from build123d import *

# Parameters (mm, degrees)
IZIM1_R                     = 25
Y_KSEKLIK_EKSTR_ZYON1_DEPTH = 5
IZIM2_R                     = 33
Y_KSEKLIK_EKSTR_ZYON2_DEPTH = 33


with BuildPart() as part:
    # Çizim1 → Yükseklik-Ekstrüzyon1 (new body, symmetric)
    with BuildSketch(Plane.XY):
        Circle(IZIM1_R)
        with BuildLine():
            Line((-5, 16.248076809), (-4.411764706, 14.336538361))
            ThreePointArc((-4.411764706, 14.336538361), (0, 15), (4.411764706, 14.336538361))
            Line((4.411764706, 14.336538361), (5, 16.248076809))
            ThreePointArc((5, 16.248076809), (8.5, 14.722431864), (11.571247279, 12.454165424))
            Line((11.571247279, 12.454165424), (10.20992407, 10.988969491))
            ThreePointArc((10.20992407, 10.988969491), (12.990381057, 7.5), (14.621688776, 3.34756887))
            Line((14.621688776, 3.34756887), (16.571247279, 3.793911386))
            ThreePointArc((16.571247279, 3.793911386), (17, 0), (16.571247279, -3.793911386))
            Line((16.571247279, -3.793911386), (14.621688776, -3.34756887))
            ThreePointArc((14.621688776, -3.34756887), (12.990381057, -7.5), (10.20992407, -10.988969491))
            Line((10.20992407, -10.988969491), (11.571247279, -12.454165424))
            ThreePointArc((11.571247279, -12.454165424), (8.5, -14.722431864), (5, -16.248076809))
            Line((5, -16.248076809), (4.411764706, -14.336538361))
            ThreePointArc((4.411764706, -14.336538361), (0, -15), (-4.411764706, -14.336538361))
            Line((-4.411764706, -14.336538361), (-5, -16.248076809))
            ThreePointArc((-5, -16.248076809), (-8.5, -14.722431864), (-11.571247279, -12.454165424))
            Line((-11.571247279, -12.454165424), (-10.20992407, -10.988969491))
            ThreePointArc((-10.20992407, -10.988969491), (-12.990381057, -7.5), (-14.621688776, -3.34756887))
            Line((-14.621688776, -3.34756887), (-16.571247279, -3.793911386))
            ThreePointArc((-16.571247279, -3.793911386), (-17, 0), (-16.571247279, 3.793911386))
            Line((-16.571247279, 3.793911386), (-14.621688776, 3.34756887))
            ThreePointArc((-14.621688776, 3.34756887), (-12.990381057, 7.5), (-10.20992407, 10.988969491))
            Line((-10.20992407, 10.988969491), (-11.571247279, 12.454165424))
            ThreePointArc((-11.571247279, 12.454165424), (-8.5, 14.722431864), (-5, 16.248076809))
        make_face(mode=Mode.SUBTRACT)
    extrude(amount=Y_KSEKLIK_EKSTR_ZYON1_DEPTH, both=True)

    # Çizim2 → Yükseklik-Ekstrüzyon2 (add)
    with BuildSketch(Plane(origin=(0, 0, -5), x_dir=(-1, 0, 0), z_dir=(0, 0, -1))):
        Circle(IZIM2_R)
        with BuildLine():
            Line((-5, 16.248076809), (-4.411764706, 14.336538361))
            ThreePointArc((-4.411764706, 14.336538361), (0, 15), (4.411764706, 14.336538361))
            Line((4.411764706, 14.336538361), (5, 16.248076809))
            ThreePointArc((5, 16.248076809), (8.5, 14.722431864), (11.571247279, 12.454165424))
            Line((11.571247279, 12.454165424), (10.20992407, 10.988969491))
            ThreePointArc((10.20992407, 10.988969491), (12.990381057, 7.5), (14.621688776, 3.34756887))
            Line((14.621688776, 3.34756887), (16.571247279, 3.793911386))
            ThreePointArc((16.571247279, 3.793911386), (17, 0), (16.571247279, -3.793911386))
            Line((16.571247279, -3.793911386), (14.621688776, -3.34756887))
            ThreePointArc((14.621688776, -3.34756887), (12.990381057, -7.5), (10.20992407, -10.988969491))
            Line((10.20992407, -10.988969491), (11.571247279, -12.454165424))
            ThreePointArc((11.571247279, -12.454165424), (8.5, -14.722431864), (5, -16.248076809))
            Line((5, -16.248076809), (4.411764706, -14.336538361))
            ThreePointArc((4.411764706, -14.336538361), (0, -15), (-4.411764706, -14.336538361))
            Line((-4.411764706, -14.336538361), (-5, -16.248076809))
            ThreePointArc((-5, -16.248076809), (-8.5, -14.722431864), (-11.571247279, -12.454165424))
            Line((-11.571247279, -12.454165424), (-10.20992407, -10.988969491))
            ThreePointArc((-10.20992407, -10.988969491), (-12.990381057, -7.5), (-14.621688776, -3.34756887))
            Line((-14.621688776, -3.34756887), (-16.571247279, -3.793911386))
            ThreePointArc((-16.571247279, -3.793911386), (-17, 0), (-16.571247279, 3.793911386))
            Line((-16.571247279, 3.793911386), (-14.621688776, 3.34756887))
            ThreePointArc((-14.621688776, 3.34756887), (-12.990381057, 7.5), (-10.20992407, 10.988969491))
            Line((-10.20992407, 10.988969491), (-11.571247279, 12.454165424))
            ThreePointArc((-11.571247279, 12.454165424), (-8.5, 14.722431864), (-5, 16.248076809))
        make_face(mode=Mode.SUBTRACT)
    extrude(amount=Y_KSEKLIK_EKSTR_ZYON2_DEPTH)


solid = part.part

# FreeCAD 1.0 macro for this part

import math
import FreeCAD as App
import Part
import Sketcher

V = App.Vector
Q = App.Units.Quantity

doc = App.newDocument("Part")
body = doc.addObject("PartDesign::Body", "Body")

# Sketch on XY plane
sketch1 = body.newObject("Sketcher::SketchObject", "Sketch")
sketch1.AttachmentSupport = (doc.getObject("XY_Plane"), [""])
sketch1.MapMode = "FlatFace"
sketch1.addGeometry([
    Part.Circle(V(0, 0, 0), V(0, 0, 1), 25),  # 0
    Part.ArcOfCircle(Part.Circle(V(0, 0, 0), V(0, 0, 1), 17), math.radians(107), math.radians(133)),  # 1
    Part.LineSegment(V(-5, 16.2, 0), V(-4.4, 14.3, 0)),  # 2
    Part.ArcOfCircle(Part.Circle(V(0, 0, 0), V(0, 0, 1), 15), math.radians(73), math.radians(107)),  # 3
    Part.LineSegment(V(4.4, 14.3, 0), V(5, 16.2, 0)),  # 4
    Part.ArcOfCircle(Part.Circle(V(0, 0, 0), V(0, 0, 1), 17), math.radians(47), math.radians(73)),  # 5
    Part.LineSegment(V(11.6, 12.5, 0), V(10.2, 11, 0)),  # 6
    Part.ArcOfCircle(Part.Circle(V(0, 0, 0), V(0, 0, 1), 15), math.radians(13), math.radians(47)),  # 7
    Part.LineSegment(V(14.6, 3.3, 0), V(16.6, 3.8, 0)),  # 8
    Part.ArcOfCircle(Part.Circle(V(0, 0, 0), V(0, 0, 1), 17), math.radians(-13), math.radians(13)),  # 9
    Part.LineSegment(V(16.6, -3.8, 0), V(14.6, -3.3, 0)),  # 10
    Part.ArcOfCircle(Part.Circle(V(0, 0, 0), V(0, 0, 1), 15), math.radians(-47), math.radians(-13)),  # 11
    Part.LineSegment(V(10.2, -11, 0), V(11.6, -12.5, 0)),  # 12
    Part.ArcOfCircle(Part.Circle(V(0, 0, 0), V(0, 0, 1), 17), math.radians(-73), math.radians(-47)),  # 13
    Part.LineSegment(V(5, -16.2, 0), V(4.4, -14.3, 0)),  # 14
    Part.ArcOfCircle(Part.Circle(V(0, 0, 0), V(0, 0, 1), 15), math.radians(-107), math.radians(-73)),  # 15
    Part.LineSegment(V(-4.4, -14.3, 0), V(-5, -16.2, 0)),  # 16
    Part.ArcOfCircle(Part.Circle(V(0, 0, 0), V(0, 0, 1), 17), math.radians(-133), math.radians(-107)),  # 17
    Part.LineSegment(V(-11.6, -12.5, 0), V(-10.2, -11, 0)),  # 18
    Part.ArcOfCircle(Part.Circle(V(0, 0, 0), V(0, 0, 1), 15), math.radians(-167), math.radians(-133)),  # 19
    Part.LineSegment(V(-14.6, -3.3, 0), V(-16.6, -3.8, 0)),  # 20
    Part.ArcOfCircle(Part.Circle(V(0, 0, 0), V(0, 0, 1), 17), math.radians(167), math.radians(193)),  # 21
    Part.LineSegment(V(-16.6, 3.8, 0), V(-14.6, 3.3, 0)),  # 22
    Part.ArcOfCircle(Part.Circle(V(0, 0, 0), V(0, 0, 1), 15), math.radians(133), math.radians(167)),  # 23
    Part.LineSegment(V(-10.2, 11, 0), V(-11.6, 12.5, 0)),  # 24
], False)
sketch1.addConstraint([
    Sketcher.Constraint("Coincident", 1, 1, 2, 1),
    Sketcher.Constraint("Coincident", 2, 2, 3, 2),
    Sketcher.Constraint("Coincident", 3, 1, 4, 1),
    Sketcher.Constraint("Coincident", 4, 2, 5, 2),
    Sketcher.Constraint("Coincident", 5, 1, 6, 1),
    Sketcher.Constraint("Coincident", 6, 2, 7, 2),
    Sketcher.Constraint("Coincident", 7, 1, 8, 1),
    Sketcher.Constraint("Coincident", 8, 2, 9, 2),
    Sketcher.Constraint("Coincident", 9, 1, 10, 1),
    Sketcher.Constraint("Coincident", 10, 2, 11, 2),
    Sketcher.Constraint("Coincident", 11, 1, 12, 1),
    Sketcher.Constraint("Coincident", 12, 2, 13, 2),
    Sketcher.Constraint("Coincident", 13, 1, 14, 1),
    Sketcher.Constraint("Coincident", 14, 2, 15, 2),
    Sketcher.Constraint("Coincident", 15, 1, 16, 1),
    Sketcher.Constraint("Coincident", 16, 2, 17, 2),
    Sketcher.Constraint("Coincident", 17, 1, 18, 1),
    Sketcher.Constraint("Coincident", 18, 2, 19, 2),
    Sketcher.Constraint("Coincident", 19, 1, 20, 1),
    Sketcher.Constraint("Coincident", 20, 2, 21, 2),
    Sketcher.Constraint("Coincident", 21, 1, 22, 1),
    Sketcher.Constraint("Coincident", 22, 2, 23, 2),
    Sketcher.Constraint("Coincident", 23, 1, 24, 1),
    Sketcher.Constraint("Coincident", 24, 2, 1, 2),
    Sketcher.Constraint("Coincident", 0, 3, -1, 1),
    Sketcher.Constraint("Coincident", 1, 3, -1, 1),
    Sketcher.Constraint("Coincident", 3, 3, -1, 1),
    Sketcher.Constraint("Coincident", 5, 3, -1, 1),
    Sketcher.Constraint("Coincident", 7, 3, -1, 1),
    Sketcher.Constraint("Coincident", 9, 3, -1, 1),
    Sketcher.Constraint("Coincident", 11, 3, -1, 1),
    Sketcher.Constraint("Coincident", 13, 3, -1, 1),
    Sketcher.Constraint("Coincident", 15, 3, -1, 1),
    Sketcher.Constraint("Coincident", 17, 3, -1, 1),
    Sketcher.Constraint("Coincident", 19, 3, -1, 1),
    Sketcher.Constraint("Coincident", 21, 3, -1, 1),
    Sketcher.Constraint("Coincident", 23, 3, -1, 1),
    Sketcher.Constraint("Equal", 1, 5),
    Sketcher.Constraint("Equal", 3, 7),
    Sketcher.Constraint("Equal", 5, 9),
    Sketcher.Constraint("Equal", 7, 11),
    Sketcher.Constraint("Equal", 9, 13),
    Sketcher.Constraint("Equal", 11, 15),
    Sketcher.Constraint("Equal", 13, 17),
    Sketcher.Constraint("Equal", 15, 19),
    Sketcher.Constraint("Equal", 17, 21),
    Sketcher.Constraint("Equal", 19, 23),
    Sketcher.Constraint("Parallel", 2, 14),
    Sketcher.Constraint("Parallel", 4, 16),
    Sketcher.Constraint("Parallel", 6, 18),
    Sketcher.Constraint("Parallel", 8, 20),
    Sketcher.Constraint("Parallel", 10, 22),
    Sketcher.Constraint("Parallel", 12, 24),
    Sketcher.Constraint("Horizontal", 2, 2, 3, 1),
    Sketcher.Constraint("Horizontal", 1, 1, 4, 2),
    Sketcher.Constraint("Horizontal", 14, 2, 15, 1),
    Sketcher.Constraint("Horizontal", 12, 2, 17, 1),
    Sketcher.Constraint("Horizontal", 11, 1, 18, 2),
    Sketcher.Constraint("Horizontal", 10, 2, 19, 1),
    Sketcher.Constraint("Horizontal", 9, 1, 20, 2),
    Sketcher.Constraint("Horizontal", 8, 2, 21, 1),
    Sketcher.Constraint("Horizontal", 6, 2, 23, 1),
    Sketcher.Constraint("Vertical", 8, 2, 9, 1),
    Sketcher.Constraint("Vertical", 6, 2, 11, 1),
    Sketcher.Constraint("Vertical", 4, 2, 13, 1),
    Sketcher.Constraint("Diameter", 0, Q("50 mm")),
    Sketcher.Constraint("Radius", 1, Q("17 mm")),
    Sketcher.Constraint("Radius", 3, Q("15 mm")),
    Sketcher.Constraint("DistanceX", 1, 1, -1, 1, Q("5 mm")),
    Sketcher.Constraint("DistanceX", 5, 1, 8, 2, Q("5 mm")),
    Sketcher.Constraint("DistanceY", 7, 1, 6, 2, Q("7.641401 mm")),
    Sketcher.Constraint("DistanceY", -1, 1, 2, 2, Q("14.336538 mm")),
    Sketcher.Constraint("DistanceY", -1, 1, 6, 2, Q("10.988969 mm")),
    Sketcher.Constraint("DistanceY", -1, 1, 8, 2, Q("3.793911 mm")),
])
pad1 = body.newObject("PartDesign::Pad", "Pad")
pad1.Profile = sketch1
pad1.Length = 10
pad1.Midplane = True

# Sketch on XY plane
sketch2 = body.newObject("Sketcher::SketchObject", "Sketch001")
sketch2.AttachmentSupport = (doc.getObject("XY_Plane"), [""])
sketch2.MapMode = "FlatFace"
sketch2.AttachmentOffset = App.Placement(V(0, 0, -5), App.Rotation())
sketch2.addGeometry([
    Part.Circle(V(0, 0, 0), V(0, 0, 1), 33),  # 0
    Part.ArcOfCircle(Part.Circle(V(0, 0, 0), V(0, 0, 1), 17), math.radians(47), math.radians(73)),  # 1
    Part.LineSegment(V(5, 16.2, 0), V(4.4, 14.3, 0)),  # 2
    Part.ArcOfCircle(Part.Circle(V(0, 0, 0), V(0, 0, 1), 15), math.radians(73), math.radians(107)),  # 3
    Part.LineSegment(V(-4.4, 14.3, 0), V(-5, 16.2, 0)),  # 4
    Part.ArcOfCircle(Part.Circle(V(0, 0, 0), V(0, 0, 1), 17), math.radians(107), math.radians(133)),  # 5
    Part.LineSegment(V(-11.6, 12.5, 0), V(-10.2, 11, 0)),  # 6
    Part.ArcOfCircle(Part.Circle(V(0, 0, 0), V(0, 0, 1), 15), math.radians(133), math.radians(167)),  # 7
    Part.LineSegment(V(-14.6, 3.3, 0), V(-16.6, 3.8, 0)),  # 8
    Part.ArcOfCircle(Part.Circle(V(0, 0, 0), V(0, 0, 1), 17), math.radians(167), math.radians(193)),  # 9
    Part.LineSegment(V(-16.6, -3.8, 0), V(-14.6, -3.3, 0)),  # 10
    Part.ArcOfCircle(Part.Circle(V(0, 0, 0), V(0, 0, 1), 15), math.radians(-167), math.radians(-133)),  # 11
    Part.LineSegment(V(-10.2, -11, 0), V(-11.6, -12.5, 0)),  # 12
    Part.ArcOfCircle(Part.Circle(V(0, 0, 0), V(0, 0, 1), 17), math.radians(-133), math.radians(-107)),  # 13
    Part.LineSegment(V(-5, -16.2, 0), V(-4.4, -14.3, 0)),  # 14
    Part.ArcOfCircle(Part.Circle(V(0, 0, 0), V(0, 0, 1), 15), math.radians(-107), math.radians(-73)),  # 15
    Part.LineSegment(V(4.4, -14.3, 0), V(5, -16.2, 0)),  # 16
    Part.ArcOfCircle(Part.Circle(V(0, 0, 0), V(0, 0, 1), 17), math.radians(-73), math.radians(-47)),  # 17
    Part.LineSegment(V(11.6, -12.5, 0), V(10.2, -11, 0)),  # 18
    Part.ArcOfCircle(Part.Circle(V(0, 0, 0), V(0, 0, 1), 15), math.radians(-47), math.radians(-13)),  # 19
    Part.LineSegment(V(14.6, -3.3, 0), V(16.6, -3.8, 0)),  # 20
    Part.ArcOfCircle(Part.Circle(V(0, 0, 0), V(0, 0, 1), 17), math.radians(-13), math.radians(13)),  # 21
    Part.LineSegment(V(16.6, 3.8, 0), V(14.6, 3.3, 0)),  # 22
    Part.ArcOfCircle(Part.Circle(V(0, 0, 0), V(0, 0, 1), 15), math.radians(13), math.radians(47)),  # 23
    Part.LineSegment(V(10.2, 11, 0), V(11.6, 12.5, 0)),  # 24
], False)
sketch2.addConstraint([
    Sketcher.Constraint("Coincident", 1, 2, 2, 1),
    Sketcher.Constraint("Coincident", 2, 2, 3, 1),
    Sketcher.Constraint("Coincident", 3, 2, 4, 1),
    Sketcher.Constraint("Coincident", 4, 2, 5, 1),
    Sketcher.Constraint("Coincident", 5, 2, 6, 1),
    Sketcher.Constraint("Coincident", 6, 2, 7, 1),
    Sketcher.Constraint("Coincident", 7, 2, 8, 1),
    Sketcher.Constraint("Coincident", 8, 2, 9, 1),
    Sketcher.Constraint("Coincident", 9, 2, 10, 1),
    Sketcher.Constraint("Coincident", 10, 2, 11, 1),
    Sketcher.Constraint("Coincident", 11, 2, 12, 1),
    Sketcher.Constraint("Coincident", 12, 2, 13, 1),
    Sketcher.Constraint("Coincident", 13, 2, 14, 1),
    Sketcher.Constraint("Coincident", 14, 2, 15, 1),
    Sketcher.Constraint("Coincident", 15, 2, 16, 1),
    Sketcher.Constraint("Coincident", 16, 2, 17, 1),
    Sketcher.Constraint("Coincident", 17, 2, 18, 1),
    Sketcher.Constraint("Coincident", 18, 2, 19, 1),
    Sketcher.Constraint("Coincident", 19, 2, 20, 1),
    Sketcher.Constraint("Coincident", 20, 2, 21, 1),
    Sketcher.Constraint("Coincident", 21, 2, 22, 1),
    Sketcher.Constraint("Coincident", 22, 2, 23, 1),
    Sketcher.Constraint("Coincident", 23, 2, 24, 1),
    Sketcher.Constraint("Coincident", 24, 2, 1, 1),
    Sketcher.Constraint("Coincident", 0, 3, -1, 1),
    Sketcher.Constraint("Coincident", 1, 3, -1, 1),
    Sketcher.Constraint("Coincident", 3, 3, -1, 1),
    Sketcher.Constraint("Coincident", 5, 3, -1, 1),
    Sketcher.Constraint("Coincident", 7, 3, -1, 1),
    Sketcher.Constraint("Coincident", 9, 3, -1, 1),
    Sketcher.Constraint("Coincident", 11, 3, -1, 1),
    Sketcher.Constraint("Coincident", 13, 3, -1, 1),
    Sketcher.Constraint("Coincident", 15, 3, -1, 1),
    Sketcher.Constraint("Coincident", 17, 3, -1, 1),
    Sketcher.Constraint("Coincident", 19, 3, -1, 1),
    Sketcher.Constraint("Coincident", 21, 3, -1, 1),
    Sketcher.Constraint("Coincident", 23, 3, -1, 1),
    Sketcher.Constraint("Equal", 1, 5),
    Sketcher.Constraint("Equal", 3, 7),
    Sketcher.Constraint("Equal", 5, 9),
    Sketcher.Constraint("Equal", 7, 11),
    Sketcher.Constraint("Equal", 9, 13),
    Sketcher.Constraint("Equal", 11, 15),
    Sketcher.Constraint("Equal", 13, 17),
    Sketcher.Constraint("Equal", 15, 19),
    Sketcher.Constraint("Equal", 17, 21),
    Sketcher.Constraint("Equal", 19, 23),
    Sketcher.Constraint("Parallel", 2, 14),
    Sketcher.Constraint("Parallel", 4, 16),
    Sketcher.Constraint("Parallel", 6, 18),
    Sketcher.Constraint("Parallel", 8, 20),
    Sketcher.Constraint("Parallel", 10, 22),
    Sketcher.Constraint("Parallel", 12, 24),
    Sketcher.Constraint("Horizontal", 2, 2, 3, 2),
    Sketcher.Constraint("Horizontal", 1, 2, 4, 2),
    Sketcher.Constraint("Horizontal", 14, 2, 15, 2),
    Sketcher.Constraint("Horizontal", 12, 2, 17, 2),
    Sketcher.Constraint("Horizontal", 11, 2, 18, 2),
    Sketcher.Constraint("Horizontal", 10, 2, 19, 2),
    Sketcher.Constraint("Horizontal", 9, 2, 20, 2),
    Sketcher.Constraint("Horizontal", 8, 2, 21, 2),
    Sketcher.Constraint("Horizontal", 6, 2, 23, 2),
    Sketcher.Constraint("Vertical", 8, 2, 9, 2),
    Sketcher.Constraint("Vertical", 6, 2, 11, 2),
    Sketcher.Constraint("Vertical", 4, 2, 13, 2),
    Sketcher.Constraint("Diameter", 0, Q("66 mm")),
    Sketcher.Constraint("Radius", 1, Q("17 mm")),
    Sketcher.Constraint("Radius", 3, Q("15 mm")),
    Sketcher.Constraint("DistanceX", -1, 1, 1, 2, Q("5 mm")),
    Sketcher.Constraint("DistanceX", 8, 2, 5, 2, Q("5 mm")),
    Sketcher.Constraint("DistanceY", 7, 2, 6, 2, Q("7.641401 mm")),
    Sketcher.Constraint("DistanceY", -1, 1, 2, 2, Q("14.336538 mm")),
    Sketcher.Constraint("DistanceY", -1, 1, 6, 2, Q("10.988969 mm")),
    Sketcher.Constraint("DistanceY", -1, 1, 8, 2, Q("3.793911 mm")),
])
pad2 = body.newObject("PartDesign::Pad", "Pad001")
pad2.Profile = sketch2
pad2.Length = 33
pad2.Reversed = True

doc.recompute()
